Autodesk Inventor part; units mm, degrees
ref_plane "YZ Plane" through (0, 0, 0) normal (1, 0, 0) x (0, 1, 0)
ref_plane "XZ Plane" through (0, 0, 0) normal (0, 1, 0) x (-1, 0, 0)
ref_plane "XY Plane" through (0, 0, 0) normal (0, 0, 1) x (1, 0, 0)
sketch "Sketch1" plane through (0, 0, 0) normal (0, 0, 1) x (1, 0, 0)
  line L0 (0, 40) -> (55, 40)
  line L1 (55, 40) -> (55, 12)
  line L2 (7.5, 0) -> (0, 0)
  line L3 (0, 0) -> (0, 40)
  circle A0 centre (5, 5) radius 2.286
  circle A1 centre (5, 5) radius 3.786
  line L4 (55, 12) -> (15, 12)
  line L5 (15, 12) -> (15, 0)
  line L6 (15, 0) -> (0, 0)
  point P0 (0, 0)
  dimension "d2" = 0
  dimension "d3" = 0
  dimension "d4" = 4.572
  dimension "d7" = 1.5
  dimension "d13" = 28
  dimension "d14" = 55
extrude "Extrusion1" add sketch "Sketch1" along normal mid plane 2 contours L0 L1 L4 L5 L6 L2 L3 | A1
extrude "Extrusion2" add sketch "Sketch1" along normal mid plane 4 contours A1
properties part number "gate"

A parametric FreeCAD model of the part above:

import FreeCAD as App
import Part
import Sketcher

doc = App.newDocument("Part")
body = doc.addObject("PartDesign::Body", "Body")

# Sketch on XY plane
sketch1 = body.newObject("Sketcher::SketchObject", "Sketch")
sketch1.AttachmentSupport = (doc.getObject("XY_Plane"), [""])
sketch1.MapMode = "FlatFace"
sketch1.addGeometry(Part.LineSegment(App.Vector(55, 40, 0), App.Vector(0, 40, 0)), False)
sketch1.addGeometry(Part.LineSegment(App.Vector(0, 40, 0), App.Vector(0, 0, 0)), False)
sketch1.addGeometry(Part.LineSegment(App.Vector(0, 0, 0), App.Vector(15, 0, 0)), False)
sketch1.addGeometry(Part.LineSegment(App.Vector(15, 0, 0), App.Vector(15, 12, 0)), False)
sketch1.addGeometry(Part.LineSegment(App.Vector(15, 12, 0), App.Vector(55, 12, 0)), False)
sketch1.addGeometry(Part.LineSegment(App.Vector(55, 12, 0), App.Vector(55, 40, 0)), False)
sketch1.addGeometry(Part.Circle(App.Vector(5, 5, 0), App.Vector(0, 0, 1), 2.3), False)
sketch1.addConstraint(Sketcher.Constraint("Coincident", 0, 2, 1, 1))
sketch1.addConstraint(Sketcher.Constraint("Coincident", 1, 2, 2, 1))
sketch1.addConstraint(Sketcher.Constraint("Coincident", 2, 2, 3, 1))
sketch1.addConstraint(Sketcher.Constraint("Coincident", 3, 2, 4, 1))
sketch1.addConstraint(Sketcher.Constraint("Coincident", 4, 2, 5, 1))
sketch1.addConstraint(Sketcher.Constraint("Coincident", 5, 2, 0, 1))
sketch1.addConstraint(Sketcher.Constraint("Horizontal", 0))
sketch1.addConstraint(Sketcher.Constraint("Vertical", 1))
sketch1.addConstraint(Sketcher.Constraint("Horizontal", 2))
sketch1.addConstraint(Sketcher.Constraint("Vertical", 3))
sketch1.addConstraint(Sketcher.Constraint("Horizontal", 4))
sketch1.addConstraint(Sketcher.Constraint("Vertical", 5))
sketch1.addConstraint(Sketcher.Constraint("Coincident", 1, 2, -1, 1))
sketch1.addConstraint(Sketcher.Constraint("Equal", 4, 1))
sketch1.addConstraint(Sketcher.Constraint("DistanceX", 0, 2, 0, 1, 55.0))
sketch1.addConstraint(Sketcher.Constraint("DistanceY", 5, 1, 5, 2, 28.0))
sketch1.addConstraint(Sketcher.Constraint("Diameter", 6, 4.572))
sketch1.addConstraint(Sketcher.Constraint("DistanceX", 2, 1, 2, 2, 15.0))
sketch1.addConstraint(Sketcher.Constraint("DistanceX", -1, 1, 6, 3, 5.0))
sketch1.addConstraint(Sketcher.Constraint("DistanceY", -1, 1, 6, 3, 5.0))
pad1 = body.newObject("PartDesign::Pad", "Pad")
pad1.Profile = sketch1
pad1.Length = 2
pad1.Midplane = True

# Sketch on XY plane
sketch2 = body.newObject("Sketcher::SketchObject", "Sketch001")
sketch2.AttachmentSupport = (doc.getObject("XY_Plane"), [""])
sketch2.MapMode = "FlatFace"
sketch2.addGeometry(Part.Circle(App.Vector(5, 5, 0), App.Vector(0, 0, 1), 3.8), False)
sketch2.addGeometry(Part.Circle(App.Vector(5, 5, 0), App.Vector(0, 0, 1), 2.3), False)
sketch2.addConstraint(Sketcher.Constraint("Coincident", 1, 3, 0, 3))
sketch2.addConstraint(Sketcher.Constraint("Diameter", 1, 4.572))
sketch2.addConstraint(Sketcher.Constraint("Diameter", 0, 7.572))
sketch2.addConstraint(Sketcher.Constraint("DistanceX", -1, 1, 0, 3, 5.0))
sketch2.addConstraint(Sketcher.Constraint("DistanceY", -1, 1, 0, 3, 5.0))
pad2 = body.newObject("PartDesign::Pad", "Pad001")
pad2.Profile = sketch2
pad2.Length = 4
pad2.Midplane = True

doc.recompute()
